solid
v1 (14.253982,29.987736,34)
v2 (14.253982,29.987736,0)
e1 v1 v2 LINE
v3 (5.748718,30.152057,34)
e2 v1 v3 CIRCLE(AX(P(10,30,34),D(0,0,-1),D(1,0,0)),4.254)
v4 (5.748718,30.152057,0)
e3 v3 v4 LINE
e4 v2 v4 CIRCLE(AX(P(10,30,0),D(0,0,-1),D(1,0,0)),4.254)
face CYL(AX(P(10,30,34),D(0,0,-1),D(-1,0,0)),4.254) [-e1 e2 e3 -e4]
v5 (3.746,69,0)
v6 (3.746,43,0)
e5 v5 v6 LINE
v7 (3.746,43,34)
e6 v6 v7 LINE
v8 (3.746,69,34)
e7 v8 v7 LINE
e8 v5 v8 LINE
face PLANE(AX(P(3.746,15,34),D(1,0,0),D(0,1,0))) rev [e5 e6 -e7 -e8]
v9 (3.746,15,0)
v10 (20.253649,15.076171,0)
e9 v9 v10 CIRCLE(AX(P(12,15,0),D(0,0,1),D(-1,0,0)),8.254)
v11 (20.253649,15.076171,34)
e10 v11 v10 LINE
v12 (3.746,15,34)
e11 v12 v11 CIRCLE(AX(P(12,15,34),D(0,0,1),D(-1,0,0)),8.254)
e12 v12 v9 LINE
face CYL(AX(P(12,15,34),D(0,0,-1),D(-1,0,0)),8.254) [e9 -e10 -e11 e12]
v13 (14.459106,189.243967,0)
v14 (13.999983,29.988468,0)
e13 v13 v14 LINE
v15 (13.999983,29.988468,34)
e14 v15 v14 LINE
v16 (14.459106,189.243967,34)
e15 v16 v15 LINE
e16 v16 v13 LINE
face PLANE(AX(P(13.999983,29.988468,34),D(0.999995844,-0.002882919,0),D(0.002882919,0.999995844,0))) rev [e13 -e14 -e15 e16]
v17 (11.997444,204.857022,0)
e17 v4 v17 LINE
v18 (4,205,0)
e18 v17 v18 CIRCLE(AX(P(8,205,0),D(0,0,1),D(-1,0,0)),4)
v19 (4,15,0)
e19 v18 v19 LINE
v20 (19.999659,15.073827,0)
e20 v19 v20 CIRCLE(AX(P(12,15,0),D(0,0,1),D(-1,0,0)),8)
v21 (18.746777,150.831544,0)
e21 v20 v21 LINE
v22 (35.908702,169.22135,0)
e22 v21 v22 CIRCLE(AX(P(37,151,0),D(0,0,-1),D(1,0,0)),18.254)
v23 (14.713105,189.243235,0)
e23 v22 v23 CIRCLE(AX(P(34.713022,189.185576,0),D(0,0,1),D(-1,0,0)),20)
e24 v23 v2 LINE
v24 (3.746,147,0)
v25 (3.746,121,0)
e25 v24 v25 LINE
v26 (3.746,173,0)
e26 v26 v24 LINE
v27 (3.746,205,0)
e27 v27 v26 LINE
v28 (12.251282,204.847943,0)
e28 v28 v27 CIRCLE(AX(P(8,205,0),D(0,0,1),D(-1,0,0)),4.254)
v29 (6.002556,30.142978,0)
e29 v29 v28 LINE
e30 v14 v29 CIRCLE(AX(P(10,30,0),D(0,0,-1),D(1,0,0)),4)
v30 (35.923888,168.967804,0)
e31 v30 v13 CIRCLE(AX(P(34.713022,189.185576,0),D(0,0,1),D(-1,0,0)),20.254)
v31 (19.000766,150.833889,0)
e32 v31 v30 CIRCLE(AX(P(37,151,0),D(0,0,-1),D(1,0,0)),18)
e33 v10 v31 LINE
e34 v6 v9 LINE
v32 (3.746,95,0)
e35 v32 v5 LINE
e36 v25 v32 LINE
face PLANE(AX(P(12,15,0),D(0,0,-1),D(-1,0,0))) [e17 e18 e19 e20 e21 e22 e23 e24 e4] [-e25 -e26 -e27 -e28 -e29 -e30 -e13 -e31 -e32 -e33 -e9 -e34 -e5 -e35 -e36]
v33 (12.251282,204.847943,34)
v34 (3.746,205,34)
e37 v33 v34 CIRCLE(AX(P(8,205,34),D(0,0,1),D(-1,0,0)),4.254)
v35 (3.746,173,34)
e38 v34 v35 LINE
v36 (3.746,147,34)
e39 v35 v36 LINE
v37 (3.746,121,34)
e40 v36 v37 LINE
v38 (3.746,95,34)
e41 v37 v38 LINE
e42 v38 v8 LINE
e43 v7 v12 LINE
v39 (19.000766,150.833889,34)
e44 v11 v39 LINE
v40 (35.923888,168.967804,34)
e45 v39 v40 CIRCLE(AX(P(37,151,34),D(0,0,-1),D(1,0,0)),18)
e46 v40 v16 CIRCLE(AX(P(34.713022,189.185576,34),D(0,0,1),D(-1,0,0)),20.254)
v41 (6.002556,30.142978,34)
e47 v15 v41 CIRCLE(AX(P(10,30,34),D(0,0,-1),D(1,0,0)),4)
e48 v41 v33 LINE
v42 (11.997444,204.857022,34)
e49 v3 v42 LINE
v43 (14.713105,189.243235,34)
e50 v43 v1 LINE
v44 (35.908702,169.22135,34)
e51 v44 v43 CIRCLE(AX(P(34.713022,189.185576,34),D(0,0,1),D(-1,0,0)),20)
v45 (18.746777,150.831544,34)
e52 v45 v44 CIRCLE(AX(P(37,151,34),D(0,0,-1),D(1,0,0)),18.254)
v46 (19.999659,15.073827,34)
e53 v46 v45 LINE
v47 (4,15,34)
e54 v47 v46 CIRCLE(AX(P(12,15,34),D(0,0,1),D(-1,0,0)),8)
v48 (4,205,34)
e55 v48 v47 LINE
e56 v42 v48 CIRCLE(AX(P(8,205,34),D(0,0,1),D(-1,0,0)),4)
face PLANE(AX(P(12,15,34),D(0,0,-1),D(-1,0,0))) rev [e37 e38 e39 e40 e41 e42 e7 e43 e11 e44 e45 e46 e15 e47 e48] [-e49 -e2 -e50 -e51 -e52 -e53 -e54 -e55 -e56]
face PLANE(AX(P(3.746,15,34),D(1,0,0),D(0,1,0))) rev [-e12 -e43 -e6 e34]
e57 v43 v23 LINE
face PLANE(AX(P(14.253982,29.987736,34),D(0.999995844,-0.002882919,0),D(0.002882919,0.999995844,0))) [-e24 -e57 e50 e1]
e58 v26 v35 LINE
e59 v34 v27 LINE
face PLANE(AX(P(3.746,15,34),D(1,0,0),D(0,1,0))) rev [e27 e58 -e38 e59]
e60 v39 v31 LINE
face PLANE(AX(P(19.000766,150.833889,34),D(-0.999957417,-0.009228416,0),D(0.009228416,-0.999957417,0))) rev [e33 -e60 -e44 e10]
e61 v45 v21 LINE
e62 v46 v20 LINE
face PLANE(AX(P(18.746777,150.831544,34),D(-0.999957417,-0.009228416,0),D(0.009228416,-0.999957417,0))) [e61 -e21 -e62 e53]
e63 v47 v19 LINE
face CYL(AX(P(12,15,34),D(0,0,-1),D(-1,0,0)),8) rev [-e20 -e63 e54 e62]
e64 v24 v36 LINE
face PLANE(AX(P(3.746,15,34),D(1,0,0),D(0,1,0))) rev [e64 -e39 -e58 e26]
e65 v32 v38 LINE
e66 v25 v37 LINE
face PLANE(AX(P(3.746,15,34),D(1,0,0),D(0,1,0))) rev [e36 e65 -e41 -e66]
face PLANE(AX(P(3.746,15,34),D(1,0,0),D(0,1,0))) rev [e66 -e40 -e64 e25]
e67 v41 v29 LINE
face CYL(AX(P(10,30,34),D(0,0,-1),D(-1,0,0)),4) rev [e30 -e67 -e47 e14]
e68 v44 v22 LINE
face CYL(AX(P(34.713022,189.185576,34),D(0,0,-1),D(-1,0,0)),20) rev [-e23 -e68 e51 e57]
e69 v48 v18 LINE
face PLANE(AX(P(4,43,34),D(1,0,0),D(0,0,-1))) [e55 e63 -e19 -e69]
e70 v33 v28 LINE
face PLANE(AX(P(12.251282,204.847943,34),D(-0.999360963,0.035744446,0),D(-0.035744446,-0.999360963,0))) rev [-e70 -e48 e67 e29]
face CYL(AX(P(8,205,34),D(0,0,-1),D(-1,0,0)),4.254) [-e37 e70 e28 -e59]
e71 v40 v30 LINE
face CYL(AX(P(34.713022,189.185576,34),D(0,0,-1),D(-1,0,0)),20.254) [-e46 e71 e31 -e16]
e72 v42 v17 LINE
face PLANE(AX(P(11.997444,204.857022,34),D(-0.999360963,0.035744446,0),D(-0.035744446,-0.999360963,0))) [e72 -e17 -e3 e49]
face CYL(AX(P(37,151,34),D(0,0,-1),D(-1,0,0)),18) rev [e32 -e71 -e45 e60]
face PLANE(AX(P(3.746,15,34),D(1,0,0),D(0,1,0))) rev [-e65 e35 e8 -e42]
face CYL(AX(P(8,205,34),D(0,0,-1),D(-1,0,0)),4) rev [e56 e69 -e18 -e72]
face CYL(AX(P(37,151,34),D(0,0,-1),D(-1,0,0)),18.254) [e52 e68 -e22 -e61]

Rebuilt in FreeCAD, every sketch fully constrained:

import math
import FreeCAD as App
import Part
import Sketcher
from FreeCAD import Vector
Q = App.Units.Quantity

doc = App.newDocument("Part")
body = doc.addObject("PartDesign::Body", "Body")

# Sketch on XY plane
sketch1 = body.newObject("Sketcher::SketchObject", "Sketch")
sketch1.AttachmentSupport = (doc.getObject("XY_Plane"), [""])
sketch1.MapMode = "FlatFace"
sketch1.addGeometry([
    Part.LineSegment(Vector(3.7, 205, 0), Vector(3.7, 15, 0)),  # 0
    Part.ArcOfCircle(Part.Circle(Vector(12, 15, 0), Vector(0, 0, 1), 8.3), math.radians(180), math.radians(361)),  # 1
    Part.LineSegment(Vector(20.3, 15.1, 0), Vector(19, 150.8, 0)),  # 2
    Part.ArcOfCircle(Part.Circle(Vector(37, 151, 0), Vector(0, 0, 1), 18), math.radians(93), math.radians(181)),  # 3
    Part.ArcOfCircle(Part.Circle(Vector(34.7, 189.2, 0), Vector(0, 0, 1), 20.3), math.radians(-87), math.radians(180)),  # 4
    Part.LineSegment(Vector(14.5, 189.2, 0), Vector(14, 30, 0)),  # 5
    Part.ArcOfCircle(Part.Circle(Vector(10, 30, 0), Vector(0, 0, 1), 4), math.radians(178), math.radians(360)),  # 6
    Part.LineSegment(Vector(6, 30.1, 0), Vector(12.3, 204.8, 0)),  # 7
    Part.ArcOfCircle(Part.Circle(Vector(8, 205, 0), Vector(0, 0, 1), 4.3), math.radians(-2), math.radians(180)),  # 8
    Part.ArcOfCircle(Part.Circle(Vector(8, 205, 0), Vector(0, 0, 1), 4), math.radians(-2), math.radians(180)),  # 9
    Part.LineSegment(Vector(12, 204.9, 0), Vector(5.7, 30.2, 0)),  # 10
    Part.ArcOfCircle(Part.Circle(Vector(10, 30, 0), Vector(0, 0, 1), 4.3), math.radians(178), math.radians(360)),  # 11
    Part.LineSegment(Vector(14.3, 30, 0), Vector(14.7, 189.2, 0)),  # 12
    Part.ArcOfCircle(Part.Circle(Vector(34.7, 189.2, 0), Vector(0, 0, 1), 20), math.radians(-87), math.radians(180)),  # 13
    Part.ArcOfCircle(Part.Circle(Vector(37, 151, 0), Vector(0, 0, 1), 18.3), math.radians(93), math.radians(181)),  # 14
    Part.LineSegment(Vector(18.7, 150.8, 0), Vector(20, 15.1, 0)),  # 15
    Part.ArcOfCircle(Part.Circle(Vector(12, 15, 0), Vector(0, 0, 1), 8), math.radians(180), math.radians(361)),  # 16
    Part.LineSegment(Vector(4, 15, 0), Vector(4, 205, 0)),  # 17
], False)
sketch1.addConstraint([
    Sketcher.Constraint("Tangent", 0, 2, 1, 1),
    Sketcher.Constraint("Tangent", 1, 2, 2, 1),
    Sketcher.Constraint("Tangent", 2, 2, 3, 2),
    Sketcher.Constraint("Tangent", 3, 1, 4, 1),
    Sketcher.Constraint("Tangent", 4, 2, 5, 1),
    Sketcher.Constraint("Tangent", 5, 2, 6, 2),
    Sketcher.Constraint("Tangent", 6, 1, 7, 1),
    Sketcher.Constraint("Tangent", 7, 2, 8, 1),
    Sketcher.Constraint("Tangent", 8, 2, 0, 1),
    Sketcher.Constraint("Tangent", 9, 1, 10, 1),
    Sketcher.Constraint("Tangent", 10, 2, 11, 1),
    Sketcher.Constraint("Tangent", 11, 2, 12, 1),
    Sketcher.Constraint("Tangent", 12, 2, 13, 2),
    Sketcher.Constraint("Tangent", 13, 1, 14, 1),
    Sketcher.Constraint("Tangent", 14, 2, 15, 1),
    Sketcher.Constraint("Tangent", 15, 2, 16, 2),
    Sketcher.Constraint("Tangent", 16, 1, 17, 1),
    Sketcher.Constraint("Tangent", 17, 2, 9, 2),
    Sketcher.Constraint("Vertical", 0),
    Sketcher.Constraint("Vertical", 17),
    Sketcher.Constraint("Coincident", 9, 3, 8, 3),
    Sketcher.Constraint("Coincident", 11, 3, 6, 3),
    Sketcher.Constraint("Coincident", 13, 3, 4, 3),
    Sketcher.Constraint("Coincident", 14, 3, 3, 3),
    Sketcher.Constraint("Coincident", 16, 3, 1, 3),
    Sketcher.Constraint("Equal", 6, 9),
    Sketcher.Constraint("Equal", 8, 11),
    Sketcher.Constraint("Parallel", 5, 12),
    Sketcher.Constraint("Radius", 3, Q("18 mm")),
    Sketcher.Constraint("Radius", 6, Q("4 mm")),
    Sketcher.Constraint("Radius", 13, Q("20 mm")),
    Sketcher.Constraint("Radius", 16, Q("8 mm")),
    Sketcher.Constraint("DistanceY", 0, 2, 0, 1, Q("190 mm")),
    Sketcher.Constraint("DistanceX", -1, 1, 1, 3, Q("12 mm")),
    Sketcher.Constraint("DistanceY", -1, 1, 1, 3, Q("15 mm")),
    Sketcher.Constraint("DistanceX", -1, 1, 3, 3, Q("37 mm")),
    Sketcher.Constraint("DistanceY", -1, 1, 3, 3, Q("151 mm")),
    Sketcher.Constraint("DistanceX", -1, 1, 6, 3, Q("10 mm")),
    Sketcher.Constraint("DistanceY", -1, 1, 6, 3, Q("30 mm")),
    Sketcher.Constraint("Radius", 1, Q("8.254 mm")),
    Sketcher.Constraint("Distance", 5, Q("159.256161 mm")),
])
pad1 = body.newObject("PartDesign::Pad", "Pad")
pad1.Profile = sketch1
pad1.Length = 34

doc.recompute()
